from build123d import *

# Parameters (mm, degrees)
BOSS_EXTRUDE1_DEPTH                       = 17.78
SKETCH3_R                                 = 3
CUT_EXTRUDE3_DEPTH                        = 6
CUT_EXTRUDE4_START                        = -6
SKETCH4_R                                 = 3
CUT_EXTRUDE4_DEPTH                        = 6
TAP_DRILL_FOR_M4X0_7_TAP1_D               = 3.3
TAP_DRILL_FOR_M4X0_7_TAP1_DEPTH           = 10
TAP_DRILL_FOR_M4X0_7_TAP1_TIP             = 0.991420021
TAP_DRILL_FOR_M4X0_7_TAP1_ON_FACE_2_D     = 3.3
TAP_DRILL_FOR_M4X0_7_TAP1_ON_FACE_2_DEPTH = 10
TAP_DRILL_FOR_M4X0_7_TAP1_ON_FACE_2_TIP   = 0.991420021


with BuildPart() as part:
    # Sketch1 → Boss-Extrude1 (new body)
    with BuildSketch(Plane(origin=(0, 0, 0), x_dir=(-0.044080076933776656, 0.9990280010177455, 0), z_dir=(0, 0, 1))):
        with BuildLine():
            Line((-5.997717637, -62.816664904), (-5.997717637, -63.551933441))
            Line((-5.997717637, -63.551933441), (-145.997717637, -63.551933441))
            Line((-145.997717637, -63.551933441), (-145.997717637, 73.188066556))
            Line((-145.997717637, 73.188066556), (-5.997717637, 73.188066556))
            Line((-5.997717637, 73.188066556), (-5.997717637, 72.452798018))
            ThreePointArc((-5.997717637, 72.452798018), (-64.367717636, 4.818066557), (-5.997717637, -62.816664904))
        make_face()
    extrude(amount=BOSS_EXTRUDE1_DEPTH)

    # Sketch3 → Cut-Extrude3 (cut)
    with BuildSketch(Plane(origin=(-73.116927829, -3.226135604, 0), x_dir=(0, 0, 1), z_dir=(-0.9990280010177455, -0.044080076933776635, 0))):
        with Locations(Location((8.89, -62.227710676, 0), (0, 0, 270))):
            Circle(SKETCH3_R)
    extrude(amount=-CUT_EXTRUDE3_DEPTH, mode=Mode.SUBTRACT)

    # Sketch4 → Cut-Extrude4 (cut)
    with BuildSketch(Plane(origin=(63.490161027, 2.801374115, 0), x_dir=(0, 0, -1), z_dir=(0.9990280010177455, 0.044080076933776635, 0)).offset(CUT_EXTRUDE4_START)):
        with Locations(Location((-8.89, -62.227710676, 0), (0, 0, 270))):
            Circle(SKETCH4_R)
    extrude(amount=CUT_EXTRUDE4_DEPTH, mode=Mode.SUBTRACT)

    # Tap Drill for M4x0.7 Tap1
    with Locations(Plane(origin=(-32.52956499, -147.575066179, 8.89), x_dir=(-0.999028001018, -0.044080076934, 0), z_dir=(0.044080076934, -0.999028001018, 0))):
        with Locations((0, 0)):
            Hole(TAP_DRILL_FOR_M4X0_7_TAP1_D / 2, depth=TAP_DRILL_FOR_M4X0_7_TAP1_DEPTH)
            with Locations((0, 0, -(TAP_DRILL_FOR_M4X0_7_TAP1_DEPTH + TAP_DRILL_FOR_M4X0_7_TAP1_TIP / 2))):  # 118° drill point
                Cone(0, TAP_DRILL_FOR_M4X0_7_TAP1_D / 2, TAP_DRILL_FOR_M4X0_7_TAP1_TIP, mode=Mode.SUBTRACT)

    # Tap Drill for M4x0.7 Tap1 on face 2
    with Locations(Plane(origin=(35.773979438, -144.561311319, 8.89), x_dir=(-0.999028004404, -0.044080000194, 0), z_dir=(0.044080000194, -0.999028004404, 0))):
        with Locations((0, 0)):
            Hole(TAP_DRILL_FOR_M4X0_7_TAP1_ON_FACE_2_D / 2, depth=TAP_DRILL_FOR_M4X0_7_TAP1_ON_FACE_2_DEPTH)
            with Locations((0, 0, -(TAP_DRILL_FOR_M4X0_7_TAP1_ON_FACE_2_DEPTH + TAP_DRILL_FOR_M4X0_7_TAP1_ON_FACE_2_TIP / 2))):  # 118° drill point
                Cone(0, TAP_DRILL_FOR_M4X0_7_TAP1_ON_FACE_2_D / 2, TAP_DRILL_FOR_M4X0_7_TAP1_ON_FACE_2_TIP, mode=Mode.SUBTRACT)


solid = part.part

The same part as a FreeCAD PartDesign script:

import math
import FreeCAD as App
import Part
import Sketcher
Q = App.Units.Quantity

doc = App.newDocument("Part")
body = doc.addObject("PartDesign::Body", "Body")

# Sketch on XY plane
sketch1 = doc.addObject("Sketcher::SketchObject", "Sketch")
body.addObject(sketch1)
sketch1.AttachmentSupport = (doc.XY_Plane, [""])
sketch1.MapMode = "FlatFace"
sketch1.addGeometry(Part.LineSegment(App.Vector(63.754541, -3.190514, 0), App.Vector(63.019987, -3.222924, 0)), False)
sketch1.addGeometry(Part.ArcOfCircle(Part.Circle(App.Vector(-4.989804, 3.786011, 0), App.Vector(0, 0, 1), 68.37), math.radians(-169.063157), math.radians(-5.884001)), False)
sketch1.addGeometry(Part.LineSegment(App.Vector(-72.117994, -9.185613, 0), App.Vector(-72.852548, -9.218023, 0)), False)
sketch1.addGeometry(Part.LineSegment(App.Vector(-72.852548, -9.218023, 0), App.Vector(-66.681337, -149.081944, 0)), False)
sketch1.addGeometry(Part.LineSegment(App.Vector(-66.681337, -149.081944, 0), App.Vector(69.925752, -143.054434, 0)), False)
sketch1.addGeometry(Part.LineSegment(App.Vector(69.925752, -143.054434, 0), App.Vector(63.754541, -3.190514, 0)), False)
sketch1.addConstraint(Sketcher.Constraint("Coincident", 0, 2, 1, 2))
sketch1.addConstraint(Sketcher.Constraint("Coincident", 1, 1, 2, 1))
sketch1.addConstraint(Sketcher.Constraint("Coincident", 2, 2, 3, 1))
sketch1.addConstraint(Sketcher.Constraint("Coincident", 3, 2, 4, 1))
sketch1.addConstraint(Sketcher.Constraint("Coincident", 4, 2, 5, 1))
sketch1.addConstraint(Sketcher.Constraint("Coincident", 5, 2, 0, 1))
sketch1.addConstraint(Sketcher.Constraint("Radius", 1, Q("68.37 mm")))
sketch1.addConstraint(Sketcher.Constraint("Distance", 3, Q("140 mm")))
sketch1.addConstraint(Sketcher.Constraint("Distance", 5, Q("140 mm")))
sketch1.addConstraint(Sketcher.Constraint("Distance", 4, Q("136.74 mm")))
sketch1.addConstraint(Sketcher.Constraint("DistanceY", 2, 2, 0, 2, Q("5.995099 mm")))
sketch1.addConstraint(Sketcher.Constraint("DistanceX", 2, 2, 4, 2, Q("142.7783 mm")))
sketch1.addConstraint(Sketcher.Constraint("DistanceY", 1, 1, 5, 2, Q("5.995099 mm")))
sketch1.addConstraint(Sketcher.Constraint("Distance", 0, Q("0.735269 mm")))
sketch1.addConstraint(Sketcher.Constraint("Distance", 2, Q("0.735269 mm")))
sketch1.addConstraint(Sketcher.Constraint("DistanceY", -1, 1, 1, 3, Q("3.786011 mm")))
sketch1.addConstraint(Sketcher.Constraint("DistanceX", -1, 1, 4, 2, Q("69.925752 mm")))
sketch1.addConstraint(Sketcher.Constraint("DistanceX", -1, 1, 5, 2, Q("63.754541 mm")))
sketch1.addConstraint(Sketcher.Constraint("DistanceX", 1, 3, 0, 2, Q("68.009791 mm")))
pad1 = doc.addObject("PartDesign::Pad", "Pad")
body.addObject(pad1)
pad1.Profile = sketch1
pad1.Length = 17.78

# Sketch on an angled plane
sketch2 = doc.addObject("Sketcher::SketchObject", "Sketch001")
body.addObject(sketch2)
sketch2.Placement = App.Placement(App.Vector(-73.116928, -3.226136, 0), App.Rotation(App.Vector(0, 0, 1), App.Vector(-0.044080077, 0.999028001, 0), App.Vector(-0.999028001, -0.044080077, 0), "ZXY"))
sketch2.addGeometry(Part.Circle(App.Vector(8.89, -62.227711, 0), App.Vector(0, 0, 1), 3), False)
sketch2.addConstraint(Sketcher.Constraint("Diameter", 0, Q("6 mm")))
sketch2.addConstraint(Sketcher.Constraint("DistanceX", -1, 1, 0, 3, Q("8.89 mm")))
sketch2.addConstraint(Sketcher.Constraint("DistanceY", 0, 3, -1, 1, Q("62.227711 mm")))
pocket1 = doc.addObject("PartDesign::Pocket", "Pocket")
body.addObject(pocket1)
pocket1.Profile = sketch2
pocket1.Length = 6

# Sketch on an angled plane
sketch3 = doc.addObject("Sketcher::SketchObject", "Sketch002")
body.addObject(sketch3)
sketch3.Placement = App.Placement(App.Vector(57.495993, 2.536894, 0), App.Rotation(App.Vector(0, 0, -1), App.Vector(-0.044080077, 0.999028001, 0), App.Vector(0.999028001, 0.044080077, 0), "ZXY"))
sketch3.addGeometry(Part.Circle(App.Vector(-8.89, -62.227711, 0), App.Vector(0, 0, 1), 3), False)
sketch3.addConstraint(Sketcher.Constraint("Diameter", 0, Q("6 mm")))
sketch3.addConstraint(Sketcher.Constraint("DistanceX", 0, 3, -1, 1, Q("8.89 mm")))
sketch3.addConstraint(Sketcher.Constraint("DistanceY", 0, 3, -1, 1, Q("62.227711 mm")))
pocket2 = doc.addObject("PartDesign::Pocket", "Pocket001")
body.addObject(pocket2)
pocket2.Profile = sketch3
pocket2.Length = 6
pocket2.Reversed = True

# Sketch on an angled plane
sketch4 = doc.addObject("Sketcher::SketchObject", "Sketch003")
body.addObject(sketch4)
sketch4.Placement = App.Placement(App.Vector(6.435591, -145.855808, 0), App.Rotation(App.Vector(-0.999028001, -0.044080077, 0), App.Vector(0, 0, -1), App.Vector(0.044080077, -0.999028001, 0), "ZXY"))
sketch4.addGeometry(Part.Circle(App.Vector(39.003067, -8.89, 0), App.Vector(0, 0, 1), 1.65), False)
sketch4.addConstraint(Sketcher.Constraint("Diameter", 0, Q("3.3 mm")))
sketch4.addConstraint(Sketcher.Constraint("DistanceY", 0, 3, -1, 1, Q("8.89 mm")))
sketch4.addConstraint(Sketcher.Constraint("DistanceX", -1, 1, 0, 3, Q("39.003067 mm")))
doc.recompute()
hole = doc.addObject("PartDesign::Hole", "Hole")
body.addObject(hole)
hole.Profile = sketch4
hole.ThreadType = "None"
hole.Diameter = 3.3
hole.DepthType = "Dimension"
hole.Depth = 10
hole.DrillPoint = "Angled"
hole.DrillPointAngle = 118

# Sketch on an angled plane
sketch5 = doc.addObject("Sketcher::SketchObject", "Sketch004")
body.addObject(sketch5)
sketch5.Placement = App.Placement(App.Vector(6.435579, -145.855806, 0), App.Rotation(App.Vector(-0.999028004, -0.04408, 0), App.Vector(0, 0, -0.999999999), App.Vector(0.04408, -0.999028004, 0), "ZXY"))
sketch5.addGeometry(Part.Circle(App.Vector(-29.366945, -8.89, 0), App.Vector(0, 0, 1), 1.65), False)
sketch5.addConstraint(Sketcher.Constraint("Diameter", 0, Q("3.3 mm")))
sketch5.addConstraint(Sketcher.Constraint("DistanceY", 0, 3, -1, 1, Q("8.89 mm")))
sketch5.addConstraint(Sketcher.Constraint("DistanceX", 0, 3, -1, 1, Q("29.366945 mm")))
doc.recompute()
hole2 = doc.addObject("PartDesign::Hole", "Hole001")
body.addObject(hole2)
hole2.Profile = sketch5
hole2.ThreadType = "None"
hole2.Diameter = 3.3
hole2.DepthType = "Dimension"
hole2.Depth = 10
hole2.DrillPoint = "Angled"
hole2.DrillPointAngle = 118

doc.recompute()
